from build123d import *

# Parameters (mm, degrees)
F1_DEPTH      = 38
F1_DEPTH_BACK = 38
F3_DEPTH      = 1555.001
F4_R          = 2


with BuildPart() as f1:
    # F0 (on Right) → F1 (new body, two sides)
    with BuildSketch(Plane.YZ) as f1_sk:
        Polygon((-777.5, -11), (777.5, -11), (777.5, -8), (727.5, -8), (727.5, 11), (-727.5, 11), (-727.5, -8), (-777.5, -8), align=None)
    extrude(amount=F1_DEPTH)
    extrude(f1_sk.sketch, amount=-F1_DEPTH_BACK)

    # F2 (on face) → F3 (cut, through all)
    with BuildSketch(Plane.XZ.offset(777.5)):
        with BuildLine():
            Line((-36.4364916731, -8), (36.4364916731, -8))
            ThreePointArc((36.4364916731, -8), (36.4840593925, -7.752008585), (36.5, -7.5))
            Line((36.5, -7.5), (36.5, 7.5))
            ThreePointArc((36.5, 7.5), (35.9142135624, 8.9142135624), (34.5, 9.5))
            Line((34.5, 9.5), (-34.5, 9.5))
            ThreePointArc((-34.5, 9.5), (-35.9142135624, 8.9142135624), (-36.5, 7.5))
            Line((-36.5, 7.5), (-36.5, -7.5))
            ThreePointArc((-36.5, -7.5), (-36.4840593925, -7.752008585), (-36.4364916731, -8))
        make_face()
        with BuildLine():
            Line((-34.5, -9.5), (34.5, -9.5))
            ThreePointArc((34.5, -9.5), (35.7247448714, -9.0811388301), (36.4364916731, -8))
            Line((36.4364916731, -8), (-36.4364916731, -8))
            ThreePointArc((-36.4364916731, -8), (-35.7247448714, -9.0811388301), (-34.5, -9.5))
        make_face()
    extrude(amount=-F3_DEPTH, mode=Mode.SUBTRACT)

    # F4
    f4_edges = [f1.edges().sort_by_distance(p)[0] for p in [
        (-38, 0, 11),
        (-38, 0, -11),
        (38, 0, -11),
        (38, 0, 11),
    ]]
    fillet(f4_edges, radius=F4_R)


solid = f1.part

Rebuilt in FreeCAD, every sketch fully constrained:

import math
import FreeCAD as App
import Part
import Sketcher
from FreeCAD import Vector


def edges_at(feature, points):
    """Names of the edges that pass closest to the given points."""
    edges = feature.Shape.Edges
    near = lambda p: min(range(len(edges)), key=lambda i: edges[i].distToShape(Part.Vertex(*p))[0])
    return sorted({f"Edge{near(p) + 1}" for p in points})

doc = App.newDocument("Part")
body = doc.addObject("PartDesign::Body", "Body")

sketch1 = body.newObject("Sketcher::SketchObject", "Sketch")
sketch1.AttachmentSupport = (doc.getObject("YZ_Plane"), [""])
sketch1.MapMode = "FlatFace"
sketch1.addGeometry(Part.LineSegment(Vector(-777.5, -11, 0), Vector(777.5, -11, 0)), False)
sketch1.addGeometry(Part.LineSegment(Vector(777.5, -11, 0), Vector(777.5, -8, 0)), False)
sketch1.addGeometry(Part.LineSegment(Vector(777.5, -8, 0), Vector(727.5, -8, 0)), False)
sketch1.addGeometry(Part.LineSegment(Vector(727.5, -8, 0), Vector(727.5, 11, 0)), False)
sketch1.addGeometry(Part.LineSegment(Vector(727.5, 11, 0), Vector(-727.5, 11, 0)), False)
sketch1.addGeometry(Part.LineSegment(Vector(-727.5, 11, 0), Vector(-727.5, -8, 0)), False)
sketch1.addGeometry(Part.LineSegment(Vector(-727.5, -8, 0), Vector(-777.5, -8, 0)), False)
sketch1.addGeometry(Part.LineSegment(Vector(-777.5, -8, 0), Vector(-777.5, -11, 0)), False)
sketch1.addConstraint(Sketcher.Constraint("Coincident", 0, 2, 1, 1))
sketch1.addConstraint(Sketcher.Constraint("Coincident", 1, 2, 2, 1))
sketch1.addConstraint(Sketcher.Constraint("Coincident", 2, 2, 3, 1))
sketch1.addConstraint(Sketcher.Constraint("Coincident", 3, 2, 4, 1))
sketch1.addConstraint(Sketcher.Constraint("Coincident", 4, 2, 5, 1))
sketch1.addConstraint(Sketcher.Constraint("Coincident", 5, 2, 6, 1))
sketch1.addConstraint(Sketcher.Constraint("Coincident", 6, 2, 7, 1))
sketch1.addConstraint(Sketcher.Constraint("Coincident", 7, 2, 0, 1))
sketch1.addConstraint(Sketcher.Constraint("Horizontal", 0))
sketch1.addConstraint(Sketcher.Constraint("Vertical", 1))
sketch1.addConstraint(Sketcher.Constraint("Horizontal", 2))
sketch1.addConstraint(Sketcher.Constraint("Vertical", 3))
sketch1.addConstraint(Sketcher.Constraint("Horizontal", 4))
sketch1.addConstraint(Sketcher.Constraint("Vertical", 5))
sketch1.addConstraint(Sketcher.Constraint("Horizontal", 6))
sketch1.addConstraint(Sketcher.Constraint("Vertical", 7))
sketch1.addConstraint(Sketcher.Constraint("Symmetric", 2, 2, 5, 2, -2))
sketch1.addConstraint(Sketcher.Constraint("Equal", 2, 6))
sketch1.addConstraint(Sketcher.Constraint("DistanceX", 0, 1, 0, 2, 1555.0))
sketch1.addConstraint(Sketcher.Constraint("DistanceX", 2, 2, 2, 1, 50.0))
sketch1.addConstraint(Sketcher.Constraint("DistanceY", 1, 1, 1, 2, 3.0))
sketch1.addConstraint(Sketcher.Constraint("DistanceY", 3, 1, 3, 2, 19.0))
sketch1.addConstraint(Sketcher.Constraint("DistanceY", 0, 2, -1, 1, 11.0))
pad1 = body.newObject("PartDesign::Pad", "Pad")
pad1.Profile = sketch1
pad1.Type = "TwoLengths"
pad1.Length = 38
pad1.Length2 = 38

sketch2 = body.newObject("Sketcher::SketchObject", "Sketch001")
sketch2.AttachmentSupport = (doc.getObject("XZ_Plane"), [""])
sketch2.MapMode = "FlatFace"
sketch2.AttachmentOffset = App.Placement(Vector(0, 0, 777.5), App.Rotation())
sketch2.addGeometry(Part.ArcOfCircle(Part.Circle(Vector(34.5, -7.5, 0), Vector(0, 0, 1), 2), math.radians(-14.48), math.radians(0)), False)
sketch2.addGeometry(Part.LineSegment(Vector(36.5, -7.5, 0), Vector(36.5, 7.5, 0)), False)
sketch2.addGeometry(Part.ArcOfCircle(Part.Circle(Vector(34.5, 7.5, 0), Vector(0, 0, 1), 2), math.radians(0), math.radians(90)), False)
sketch2.addGeometry(Part.LineSegment(Vector(34.5, 9.5, 0), Vector(-34.5, 9.5, 0)), False)
sketch2.addGeometry(Part.ArcOfCircle(Part.Circle(Vector(-34.5, 7.5, 0), Vector(0, 0, 1), 2), math.radians(90), math.radians(180)), False)
sketch2.addGeometry(Part.LineSegment(Vector(-36.5, 7.5, 0), Vector(-36.5, -7.5, 0)), False)
sketch2.addGeometry(Part.ArcOfCircle(Part.Circle(Vector(-34.5, -7.5, 0), Vector(0, 0, 1), 2), math.radians(180), math.radians(194.48)), False)
sketch2.addGeometry(Part.ArcOfCircle(Part.Circle(Vector(-34.5, -7.5, 0), Vector(0, 0, 1), 2), math.radians(-166), math.radians(-90)), False)
sketch2.addGeometry(Part.LineSegment(Vector(-34.5, -9.5, 0), Vector(34.5, -9.5, 0)), False)
sketch2.addGeometry(Part.ArcOfCircle(Part.Circle(Vector(34.5, -7.5, 0), Vector(0, 0, 1), 2), math.radians(-90), math.radians(-14)), False)
sketch2.addConstraint(Sketcher.Constraint("Tangent", 0, 2, 1, 1))
sketch2.addConstraint(Sketcher.Constraint("Tangent", 1, 2, 2, 1))
sketch2.addConstraint(Sketcher.Constraint("Tangent", 2, 2, 3, 1))
sketch2.addConstraint(Sketcher.Constraint("Tangent", 3, 2, 4, 1))
sketch2.addConstraint(Sketcher.Constraint("Tangent", 4, 2, 5, 1))
sketch2.addConstraint(Sketcher.Constraint("Tangent", 5, 2, 6, 1))
sketch2.addConstraint(Sketcher.Constraint("Tangent", 6, 2, 7, 1))
sketch2.addConstraint(Sketcher.Constraint("Tangent", 7, 2, 8, 1))
sketch2.addConstraint(Sketcher.Constraint("Tangent", 8, 2, 9, 1))
sketch2.addConstraint(Sketcher.Constraint("Tangent", 9, 2, 0, 1))
sketch2.addConstraint(Sketcher.Constraint("Vertical", 1))
sketch2.addConstraint(Sketcher.Constraint("Horizontal", 3))
sketch2.addConstraint(Sketcher.Constraint("Vertical", 5))
sketch2.addConstraint(Sketcher.Constraint("Horizontal", 8))
sketch2.addConstraint(Sketcher.Constraint("Equal", 0, 2))
sketch2.addConstraint(Sketcher.Constraint("Equal", 2, 4))
sketch2.addConstraint(Sketcher.Constraint("Equal", 4, 6))
sketch2.addConstraint(Sketcher.Constraint("Equal", 6, 7))
sketch2.addConstraint(Sketcher.Constraint("Equal", 7, 9))
sketch2.addConstraint(Sketcher.Constraint("Symmetric", 0, 3, 4, 3, -1, 1))
sketch2.addConstraint(Sketcher.Constraint("Horizontal", 6, 2, 9, 2))
sketch2.addConstraint(Sketcher.Constraint("Radius", 0, 2.0))
sketch2.addConstraint(Sketcher.Constraint("DistanceX", 3, 2, 3, 1, 69.0))
sketch2.addConstraint(Sketcher.Constraint("DistanceY", 1, 1, 1, 2, 15.0))
sketch2.addConstraint(Sketcher.Constraint("DistanceY", 6, 2, -1, 1, 8.0))
pocket1 = body.newObject("PartDesign::Pocket", "Pocket")
pocket1.Profile = sketch2
pocket1.Type = "ThroughAll"
doc.recompute()

fillet = body.newObject("PartDesign::Fillet", "Fillet")
fillet.Base = (pocket1, edges_at(pocket1, [
    (-38, 0, 11),
    (-38, 0, -11),
    (38, 0, -11),
    (38, 0, 11),
]))
fillet.Radius = 2

doc.recompute()
